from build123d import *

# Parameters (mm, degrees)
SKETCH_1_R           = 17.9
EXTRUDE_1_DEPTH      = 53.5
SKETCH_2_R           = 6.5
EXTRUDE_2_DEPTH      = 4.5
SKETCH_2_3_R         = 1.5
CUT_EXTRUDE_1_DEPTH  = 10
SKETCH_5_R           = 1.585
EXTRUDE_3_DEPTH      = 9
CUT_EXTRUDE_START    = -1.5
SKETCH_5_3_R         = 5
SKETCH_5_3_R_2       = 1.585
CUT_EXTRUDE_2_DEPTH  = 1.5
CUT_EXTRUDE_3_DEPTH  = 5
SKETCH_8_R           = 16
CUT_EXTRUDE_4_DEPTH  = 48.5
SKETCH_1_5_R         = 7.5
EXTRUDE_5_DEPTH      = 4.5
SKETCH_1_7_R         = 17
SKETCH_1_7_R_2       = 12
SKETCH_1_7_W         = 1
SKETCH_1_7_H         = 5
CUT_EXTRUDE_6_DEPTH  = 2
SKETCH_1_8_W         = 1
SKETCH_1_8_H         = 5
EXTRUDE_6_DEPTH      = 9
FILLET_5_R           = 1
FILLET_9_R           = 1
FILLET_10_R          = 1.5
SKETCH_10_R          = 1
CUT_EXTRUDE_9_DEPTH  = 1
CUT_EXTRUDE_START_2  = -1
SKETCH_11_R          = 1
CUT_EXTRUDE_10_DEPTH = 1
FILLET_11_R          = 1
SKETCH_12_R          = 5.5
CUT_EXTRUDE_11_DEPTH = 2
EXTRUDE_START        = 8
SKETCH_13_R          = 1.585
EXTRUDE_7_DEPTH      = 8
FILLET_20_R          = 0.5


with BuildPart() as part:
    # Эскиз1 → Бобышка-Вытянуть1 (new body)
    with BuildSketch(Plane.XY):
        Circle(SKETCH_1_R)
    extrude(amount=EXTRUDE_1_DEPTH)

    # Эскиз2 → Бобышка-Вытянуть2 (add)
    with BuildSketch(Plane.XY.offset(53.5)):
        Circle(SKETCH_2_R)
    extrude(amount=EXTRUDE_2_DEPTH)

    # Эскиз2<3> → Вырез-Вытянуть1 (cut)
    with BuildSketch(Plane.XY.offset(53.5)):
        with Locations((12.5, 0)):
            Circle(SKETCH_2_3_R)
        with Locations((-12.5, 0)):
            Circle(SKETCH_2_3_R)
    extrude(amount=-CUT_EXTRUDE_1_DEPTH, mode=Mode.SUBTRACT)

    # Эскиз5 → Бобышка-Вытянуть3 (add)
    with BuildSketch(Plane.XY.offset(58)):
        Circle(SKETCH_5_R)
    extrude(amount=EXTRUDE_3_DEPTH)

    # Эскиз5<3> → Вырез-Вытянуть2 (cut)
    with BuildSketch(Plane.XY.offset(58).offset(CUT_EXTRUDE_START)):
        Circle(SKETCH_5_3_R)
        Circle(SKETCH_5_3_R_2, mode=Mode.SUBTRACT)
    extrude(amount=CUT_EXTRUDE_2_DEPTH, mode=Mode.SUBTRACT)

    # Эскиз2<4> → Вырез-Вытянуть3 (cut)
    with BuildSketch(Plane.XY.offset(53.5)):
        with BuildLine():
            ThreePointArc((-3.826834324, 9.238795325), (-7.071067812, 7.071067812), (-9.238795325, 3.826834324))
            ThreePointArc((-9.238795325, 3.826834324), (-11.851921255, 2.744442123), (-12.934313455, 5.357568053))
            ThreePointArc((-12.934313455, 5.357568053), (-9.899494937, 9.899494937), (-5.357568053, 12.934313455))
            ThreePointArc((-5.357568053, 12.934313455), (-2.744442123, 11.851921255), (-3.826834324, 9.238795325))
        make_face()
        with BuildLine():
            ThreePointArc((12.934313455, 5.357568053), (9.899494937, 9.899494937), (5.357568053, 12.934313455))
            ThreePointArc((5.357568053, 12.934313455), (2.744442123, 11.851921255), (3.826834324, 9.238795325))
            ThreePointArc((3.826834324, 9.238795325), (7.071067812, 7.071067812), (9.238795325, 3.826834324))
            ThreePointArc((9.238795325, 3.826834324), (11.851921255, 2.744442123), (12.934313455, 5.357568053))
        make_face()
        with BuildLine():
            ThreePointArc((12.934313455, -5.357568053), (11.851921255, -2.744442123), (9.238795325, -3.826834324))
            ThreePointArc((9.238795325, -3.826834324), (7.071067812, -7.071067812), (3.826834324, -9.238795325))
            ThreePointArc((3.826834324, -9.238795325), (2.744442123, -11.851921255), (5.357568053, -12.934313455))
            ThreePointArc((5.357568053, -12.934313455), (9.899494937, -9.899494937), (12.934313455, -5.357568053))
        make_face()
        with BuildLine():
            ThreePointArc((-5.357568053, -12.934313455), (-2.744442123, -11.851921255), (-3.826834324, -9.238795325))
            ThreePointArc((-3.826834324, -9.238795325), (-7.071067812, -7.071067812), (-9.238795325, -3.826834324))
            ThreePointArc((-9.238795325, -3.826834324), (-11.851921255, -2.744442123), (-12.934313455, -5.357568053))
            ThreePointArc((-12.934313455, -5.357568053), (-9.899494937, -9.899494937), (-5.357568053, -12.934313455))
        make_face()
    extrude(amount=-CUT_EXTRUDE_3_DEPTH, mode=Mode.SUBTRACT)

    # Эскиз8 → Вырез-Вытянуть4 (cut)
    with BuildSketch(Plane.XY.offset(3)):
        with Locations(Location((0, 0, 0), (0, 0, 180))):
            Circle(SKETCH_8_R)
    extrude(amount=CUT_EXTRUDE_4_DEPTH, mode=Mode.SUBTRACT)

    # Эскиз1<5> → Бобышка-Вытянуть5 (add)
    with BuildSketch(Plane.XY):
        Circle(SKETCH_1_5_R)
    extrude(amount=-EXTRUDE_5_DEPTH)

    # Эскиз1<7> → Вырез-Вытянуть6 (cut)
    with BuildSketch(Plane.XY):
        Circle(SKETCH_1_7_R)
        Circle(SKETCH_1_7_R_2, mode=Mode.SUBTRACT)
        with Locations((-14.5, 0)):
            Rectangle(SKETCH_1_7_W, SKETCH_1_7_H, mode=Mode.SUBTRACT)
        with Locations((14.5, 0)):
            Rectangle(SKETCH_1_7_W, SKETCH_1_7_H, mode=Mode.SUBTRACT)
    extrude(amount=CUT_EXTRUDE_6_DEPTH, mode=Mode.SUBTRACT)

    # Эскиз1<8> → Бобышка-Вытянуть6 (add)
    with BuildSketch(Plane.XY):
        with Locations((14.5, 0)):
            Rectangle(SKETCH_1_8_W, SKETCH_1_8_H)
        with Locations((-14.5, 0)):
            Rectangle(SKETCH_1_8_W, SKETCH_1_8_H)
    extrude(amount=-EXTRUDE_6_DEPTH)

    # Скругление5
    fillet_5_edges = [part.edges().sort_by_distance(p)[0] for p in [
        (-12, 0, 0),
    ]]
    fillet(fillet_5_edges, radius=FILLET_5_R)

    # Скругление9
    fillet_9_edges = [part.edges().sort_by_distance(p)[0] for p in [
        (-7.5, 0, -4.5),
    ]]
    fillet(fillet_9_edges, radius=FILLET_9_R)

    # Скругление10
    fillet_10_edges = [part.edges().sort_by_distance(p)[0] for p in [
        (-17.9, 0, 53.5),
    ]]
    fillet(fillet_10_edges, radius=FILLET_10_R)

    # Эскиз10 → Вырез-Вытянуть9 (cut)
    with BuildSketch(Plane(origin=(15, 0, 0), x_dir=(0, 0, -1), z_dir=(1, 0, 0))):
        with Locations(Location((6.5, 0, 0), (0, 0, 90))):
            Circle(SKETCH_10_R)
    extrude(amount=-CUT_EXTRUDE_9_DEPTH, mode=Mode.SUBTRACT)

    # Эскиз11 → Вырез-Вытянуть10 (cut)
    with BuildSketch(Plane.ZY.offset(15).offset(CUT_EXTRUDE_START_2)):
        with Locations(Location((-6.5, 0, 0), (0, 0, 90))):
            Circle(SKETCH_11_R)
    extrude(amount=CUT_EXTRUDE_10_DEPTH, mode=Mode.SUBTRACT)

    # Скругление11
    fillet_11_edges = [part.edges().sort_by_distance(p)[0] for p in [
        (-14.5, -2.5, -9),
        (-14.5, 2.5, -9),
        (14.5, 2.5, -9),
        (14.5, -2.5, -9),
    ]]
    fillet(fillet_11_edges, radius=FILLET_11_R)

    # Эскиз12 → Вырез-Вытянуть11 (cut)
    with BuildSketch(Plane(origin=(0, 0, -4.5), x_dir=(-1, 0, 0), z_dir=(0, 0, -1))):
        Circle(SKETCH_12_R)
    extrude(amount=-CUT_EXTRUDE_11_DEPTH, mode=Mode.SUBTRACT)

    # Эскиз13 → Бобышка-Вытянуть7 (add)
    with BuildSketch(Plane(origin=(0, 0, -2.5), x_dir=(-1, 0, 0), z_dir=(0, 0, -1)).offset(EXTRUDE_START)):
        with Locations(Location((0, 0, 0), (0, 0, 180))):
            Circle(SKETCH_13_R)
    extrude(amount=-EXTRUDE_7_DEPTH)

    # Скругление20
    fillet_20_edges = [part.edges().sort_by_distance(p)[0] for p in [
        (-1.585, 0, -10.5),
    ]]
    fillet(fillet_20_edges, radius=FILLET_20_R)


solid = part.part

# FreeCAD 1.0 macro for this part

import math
import FreeCAD as App
import Part
import Sketcher

V = App.Vector
Q = App.Units.Quantity


def edges_at(feature, points):
    """Names of the edges that pass closest to the given points."""
    edges = feature.Shape.Edges
    near = lambda p: min(range(len(edges)), key=lambda i: edges[i].distToShape(Part.Vertex(*p))[0])
    return sorted({f"Edge{near(p) + 1}" for p in points})

doc = App.newDocument("Part")
body = doc.addObject("PartDesign::Body", "Body")

# Sketch on XY plane
sketch1 = body.newObject("Sketcher::SketchObject", "Sketch")
sketch1.AttachmentSupport = (doc.getObject("XY_Plane"), [""])
sketch1.MapMode = "FlatFace"
sketch1.addGeometry(Part.Circle(V(0, 0, 0), V(0, 0, 1), 17.9), False)
sketch1.addConstraint(Sketcher.Constraint("Coincident", 0, 3, -1, 1))
sketch1.addConstraint(Sketcher.Constraint("Diameter", 0, Q("35.8 mm")))
pad1 = body.newObject("PartDesign::Pad", "Pad")
pad1.Profile = sketch1
pad1.Length = 53.5

# Sketch on XY plane
sketch2 = body.newObject("Sketcher::SketchObject", "Sketch001")
sketch2.AttachmentSupport = (doc.getObject("XY_Plane"), [""])
sketch2.MapMode = "FlatFace"
sketch2.AttachmentOffset = App.Placement(V(0, 0, 53.5), App.Rotation())
sketch2.addGeometry(Part.Circle(V(0, 0, 0), V(0, 0, 1), 6.5), False)
sketch2.addConstraint(Sketcher.Constraint("Coincident", 0, 3, -1, 1))
sketch2.addConstraint(Sketcher.Constraint("Diameter", 0, Q("13 mm")))
pad2 = body.newObject("PartDesign::Pad", "Pad001")
pad2.Profile = sketch2
pad2.Length = 4.5

# Sketch on XY plane
sketch3 = body.newObject("Sketcher::SketchObject", "Sketch002")
sketch3.AttachmentSupport = (doc.getObject("XY_Plane"), [""])
sketch3.MapMode = "FlatFace"
sketch3.AttachmentOffset = App.Placement(V(0, 0, 53.5), App.Rotation())
sketch3.addGeometry(Part.Circle(V(12.5, 0, 0), V(0, 0, 1), 1.5), False)
sketch3.addGeometry(Part.Circle(V(-12.5, 0, 0), V(0, 0, 1), 1.5), False)
sketch3.addConstraint(Sketcher.Constraint("Equal", 0, 1))
sketch3.addConstraint(Sketcher.Constraint("Symmetric", 0, 3, 1, 3, -1, 1))
sketch3.addConstraint(Sketcher.Constraint("PointOnObject", 0, 3, -1))
sketch3.addConstraint(Sketcher.Constraint("Diameter", 0, Q("3 mm")))
sketch3.addConstraint(Sketcher.Constraint("DistanceX", 1, 3, 0, 3, Q("25 mm")))
pocket1 = body.newObject("PartDesign::Pocket", "Pocket")
pocket1.Profile = sketch3
pocket1.Length = 10

# Sketch on XY plane
sketch4 = body.newObject("Sketcher::SketchObject", "Sketch003")
sketch4.AttachmentSupport = (doc.getObject("XY_Plane"), [""])
sketch4.MapMode = "FlatFace"
sketch4.AttachmentOffset = App.Placement(V(0, 0, 58), App.Rotation())
sketch4.addGeometry(Part.Circle(V(0, 0, 0), V(0, 0, 1), 1.585), False)
sketch4.addConstraint(Sketcher.Constraint("Coincident", 0, 3, -1, 1))
sketch4.addConstraint(Sketcher.Constraint("Diameter", 0, Q("3.17 mm")))
pad3 = body.newObject("PartDesign::Pad", "Pad002")
pad3.Profile = sketch4
pad3.Length = 9

# Sketch on XY plane
sketch5 = body.newObject("Sketcher::SketchObject", "Sketch004")
sketch5.AttachmentSupport = (doc.getObject("XY_Plane"), [""])
sketch5.MapMode = "FlatFace"
sketch5.AttachmentOffset = App.Placement(V(0, 0, 56.5), App.Rotation())
sketch5.addGeometry(Part.Circle(V(0, 0, 0), V(0, 0, 1), 5), False)
sketch5.addGeometry(Part.Circle(V(0, 0, 0), V(0, 0, 1), 1.585), False)
sketch5.addConstraint(Sketcher.Constraint("Coincident", 0, 3, -1, 1))
sketch5.addConstraint(Sketcher.Constraint("Coincident", 1, 3, -1, 1))
sketch5.addConstraint(Sketcher.Constraint("Diameter", 0, Q("10 mm")))
sketch5.addConstraint(Sketcher.Constraint("Diameter", 1, Q("3.17 mm")))
pocket2 = body.newObject("PartDesign::Pocket", "Pocket001")
pocket2.Profile = sketch5
pocket2.Length = 1.5
pocket2.Reversed = True

# Sketch on XY plane
sketch6 = body.newObject("Sketcher::SketchObject", "Sketch005")
sketch6.AttachmentSupport = (doc.getObject("XY_Plane"), [""])
sketch6.MapMode = "FlatFace"
sketch6.AttachmentOffset = App.Placement(V(0, 0, 53.5), App.Rotation())
sketch6.addGeometry(Part.ArcOfCircle(Part.Circle(V(0, 0, 0), V(0, 0, 1), 10), math.radians(112.5), math.radians(157.5)), False)
sketch6.addGeometry(Part.ArcOfCircle(Part.Circle(V(-4.592201, 11.086554, 0), V(0, 0, 1), 2), math.radians(-67.5), math.radians(112.5)), False)
sketch6.addGeometry(Part.ArcOfCircle(Part.Circle(V(0, 0, 0), V(0, 0, 1), 14), math.radians(112.5), math.radians(157.5)), False)
sketch6.addGeometry(Part.ArcOfCircle(Part.Circle(V(-11.086554, 4.592201, 0), V(0, 0, 1), 2), math.radians(157.5), math.radians(337.5)), False)
sketch6.addGeometry(Part.ArcOfCircle(Part.Circle(V(0, 0, 0), V(0, 0, 1), 14), math.radians(22.5), math.radians(67.5)), False)
sketch6.addGeometry(Part.ArcOfCircle(Part.Circle(V(4.592201, 11.086554, 0), V(0, 0, 1), 2), math.radians(67.5), math.radians(247.5)), False)
sketch6.addGeometry(Part.ArcOfCircle(Part.Circle(V(0, 0, 0), V(0, 0, 1), 10), math.radians(22.5), math.radians(67.5)), False)
sketch6.addGeometry(Part.ArcOfCircle(Part.Circle(V(11.086554, 4.592201, 0), V(0, 0, 1), 2), math.radians(-157.5), math.radians(22.5)), False)
sketch6.addGeometry(Part.ArcOfCircle(Part.Circle(V(11.086554, -4.592201, 0), V(0, 0, 1), 2), math.radians(-22.5), math.radians(157.5)), False)
sketch6.addGeometry(Part.ArcOfCircle(Part.Circle(V(0, 0, 0), V(0, 0, 1), 10), math.radians(-67.5), math.radians(-22.5)), False)
sketch6.addGeometry(Part.ArcOfCircle(Part.Circle(V(4.592201, -11.086554, 0), V(0, 0, 1), 2), math.radians(112.5), math.radians(292.5)), False)
sketch6.addGeometry(Part.ArcOfCircle(Part.Circle(V(0, 0, 0), V(0, 0, 1), 14), math.radians(-67.5), math.radians(-22.5)), False)
sketch6.addGeometry(Part.ArcOfCircle(Part.Circle(V(-4.592201, -11.086554, 0), V(0, 0, 1), 2), math.radians(-112.5), math.radians(67.5)), False)
sketch6.addGeometry(Part.ArcOfCircle(Part.Circle(V(0, 0, 0), V(0, 0, 1), 10), math.radians(-157.5), math.radians(-112.5)), False)
sketch6.addGeometry(Part.ArcOfCircle(Part.Circle(V(-11.086554, -4.592201, 0), V(0, 0, 1), 2), math.radians(22.5), math.radians(202.5)), False)
sketch6.addGeometry(Part.ArcOfCircle(Part.Circle(V(0, 0, 0), V(0, 0, 1), 14), math.radians(-157.5), math.radians(-112.5)), False)
sketch6.addConstraint(Sketcher.Constraint("Tangent", 0, 1, 1, 1))
sketch6.addConstraint(Sketcher.Constraint("Tangent", 1, 2, 2, 1))
sketch6.addConstraint(Sketcher.Constraint("Tangent", 2, 2, 3, 1))
sketch6.addConstraint(Sketcher.Constraint("Tangent", 3, 2, 0, 2))
sketch6.addConstraint(Sketcher.Constraint("Tangent", 4, 2, 5, 1))
sketch6.addConstraint(Sketcher.Constraint("Tangent", 5, 2, 6, 2))
sketch6.addConstraint(Sketcher.Constraint("Tangent", 6, 1, 7, 1))
sketch6.addConstraint(Sketcher.Constraint("Tangent", 7, 2, 4, 1))
sketch6.addConstraint(Sketcher.Constraint("Tangent", 8, 2, 9, 2))
sketch6.addConstraint(Sketcher.Constraint("Tangent", 9, 1, 10, 1))
sketch6.addConstraint(Sketcher.Constraint("Tangent", 10, 2, 11, 1))
sketch6.addConstraint(Sketcher.Constraint("Tangent", 11, 2, 8, 1))
sketch6.addConstraint(Sketcher.Constraint("Tangent", 12, 2, 13, 2))
sketch6.addConstraint(Sketcher.Constraint("Tangent", 13, 1, 14, 1))
sketch6.addConstraint(Sketcher.Constraint("Tangent", 14, 2, 15, 1))
sketch6.addConstraint(Sketcher.Constraint("Tangent", 15, 2, 12, 1))
sketch6.addConstraint(Sketcher.Constraint("Coincident", 0, 3, -1, 1))
sketch6.addConstraint(Sketcher.Constraint("Coincident", 2, 3, -1, 1))
sketch6.addConstraint(Sketcher.Constraint("Coincident", 4, 3, -1, 1))
sketch6.addConstraint(Sketcher.Constraint("Coincident", 6, 3, -1, 1))
sketch6.addConstraint(Sketcher.Constraint("Coincident", 9, 3, -1, 1))
sketch6.addConstraint(Sketcher.Constraint("Coincident", 11, 3, -1, 1))
sketch6.addConstraint(Sketcher.Constraint("Coincident", 13, 3, -1, 1))
sketch6.addConstraint(Sketcher.Constraint("Coincident", 15, 3, -1, 1))
sketch6.addConstraint(Sketcher.Constraint("Equal", 2, 4))
sketch6.addConstraint(Sketcher.Constraint("Equal", 3, 5))
sketch6.addConstraint(Sketcher.Constraint("Equal", 7, 8))
sketch6.addConstraint(Sketcher.Constraint("Equal", 6, 9))
sketch6.addConstraint(Sketcher.Constraint("Equal", 10, 12))
sketch6.addConstraint(Sketcher.Constraint("Equal", 9, 13))
sketch6.addConstraint(Sketcher.Constraint("Horizontal", 1, 3, 5, 3))
sketch6.addConstraint(Sketcher.Constraint("Horizontal", 3, 3, 7, 3))
sketch6.addConstraint(Sketcher.Constraint("Horizontal", 10, 3, 12, 3))
sketch6.addConstraint(Sketcher.Constraint("Horizontal", 8, 3, 14, 3))
sketch6.addConstraint(Sketcher.Constraint("Vertical", 7, 3, 8, 3))
sketch6.addConstraint(Sketcher.Constraint("Vertical", 5, 3, 10, 3))
sketch6.addConstraint(Sketcher.Constraint("Radius", 0, Q("10 mm")))
sketch6.addConstraint(Sketcher.Constraint("Radius", 1, Q("2 mm")))
sketch6.addConstraint(Sketcher.Constraint("DistanceX", 1, 3, -1, 1, Q("4.592201 mm")))
sketch6.addConstraint(Sketcher.Constraint("DistanceY", -1, 1, 3, 3, Q("4.592201 mm")))
pocket3 = body.newObject("PartDesign::Pocket", "Pocket002")
pocket3.Profile = sketch6
pocket3.Length = 5

# Sketch on XY plane
sketch7 = body.newObject("Sketcher::SketchObject", "Sketch006")
sketch7.AttachmentSupport = (doc.getObject("XY_Plane"), [""])
sketch7.MapMode = "FlatFace"
sketch7.AttachmentOffset = App.Placement(V(0, 0, 3), App.Rotation())
sketch7.addGeometry(Part.Circle(V(0, 0, 0), V(0, 0, 1), 16), False)
sketch7.addConstraint(Sketcher.Constraint("Coincident", 0, 3, -1, 1))
sketch7.addConstraint(Sketcher.Constraint("Diameter", 0, Q("32 mm")))
pocket4 = body.newObject("PartDesign::Pocket", "Pocket003")
pocket4.Profile = sketch7
pocket4.Length = 48.5
pocket4.Reversed = True

# Sketch on XY plane
sketch8 = body.newObject("Sketcher::SketchObject", "Sketch007")
sketch8.AttachmentSupport = (doc.getObject("XY_Plane"), [""])
sketch8.MapMode = "FlatFace"
sketch8.addGeometry(Part.Circle(V(0, 0, 0), V(0, 0, 1), 7.5), False)
sketch8.addConstraint(Sketcher.Constraint("Coincident", 0, 3, -1, 1))
sketch8.addConstraint(Sketcher.Constraint("Diameter", 0, Q("15 mm")))
pad4 = body.newObject("PartDesign::Pad", "Pad003")
pad4.Profile = sketch8
pad4.Length = 4.5
pad4.Reversed = True

# Sketch on XY plane
sketch9 = body.newObject("Sketcher::SketchObject", "Sketch008")
sketch9.AttachmentSupport = (doc.getObject("XY_Plane"), [""])
sketch9.MapMode = "FlatFace"
sketch9.addGeometry(Part.Circle(V(0, 0, 0), V(0, 0, 1), 17), False)
sketch9.addGeometry(Part.LineSegment(V(-14, -2.5, 0), V(-15, -2.5, 0)), False)
sketch9.addGeometry(Part.LineSegment(V(-15, -2.5, 0), V(-15, 2.5, 0)), False)
sketch9.addGeometry(Part.LineSegment(V(-15, 2.5, 0), V(-14, 2.5, 0)), False)
sketch9.addGeometry(Part.LineSegment(V(-14, 2.5, 0), V(-14, -2.5, 0)), False)
sketch9.addGeometry(Part.Circle(V(0, 0, 0), V(0, 0, 1), 12), False)
sketch9.addGeometry(Part.LineSegment(V(15, -2.5, 0), V(14, -2.5, 0)), False)
sketch9.addGeometry(Part.LineSegment(V(14, -2.5, 0), V(14, 2.5, 0)), False)
sketch9.addGeometry(Part.LineSegment(V(14, 2.5, 0), V(15, 2.5, 0)), False)
sketch9.addGeometry(Part.LineSegment(V(15, 2.5, 0), V(15, -2.5, 0)), False)
sketch9.addConstraint(Sketcher.Constraint("Coincident", 1, 2, 2, 1))
sketch9.addConstraint(Sketcher.Constraint("Coincident", 2, 2, 3, 1))
sketch9.addConstraint(Sketcher.Constraint("Coincident", 3, 2, 4, 1))
sketch9.addConstraint(Sketcher.Constraint("Coincident", 4, 2, 1, 1))
sketch9.addConstraint(Sketcher.Constraint("Coincident", 6, 2, 7, 1))
sketch9.addConstraint(Sketcher.Constraint("Coincident", 7, 2, 8, 1))
sketch9.addConstraint(Sketcher.Constraint("Coincident", 8, 2, 9, 1))
sketch9.addConstraint(Sketcher.Constraint("Coincident", 9, 2, 6, 1))
sketch9.addConstraint(Sketcher.Constraint("Horizontal", 1))
sketch9.addConstraint(Sketcher.Constraint("Vertical", 2))
sketch9.addConstraint(Sketcher.Constraint("Horizontal", 3))
sketch9.addConstraint(Sketcher.Constraint("Vertical", 4))
sketch9.addConstraint(Sketcher.Constraint("Horizontal", 6))
sketch9.addConstraint(Sketcher.Constraint("Vertical", 7))
sketch9.addConstraint(Sketcher.Constraint("Horizontal", 8))
sketch9.addConstraint(Sketcher.Constraint("Vertical", 9))
sketch9.addConstraint(Sketcher.Constraint("Coincident", 0, 3, -1, 1))
sketch9.addConstraint(Sketcher.Constraint("Coincident", 5, 3, -1, 1))
sketch9.addConstraint(Sketcher.Constraint("Symmetric", 3, 2, 6, 2, -1, 1))
sketch9.addConstraint(Sketcher.Constraint("Symmetric", 1, 2, 8, 2, -1, 1))
sketch9.addConstraint(Sketcher.Constraint("Horizontal", 4, 2, 6, 2))
sketch9.addConstraint(Sketcher.Constraint("Diameter", 0, Q("34 mm")))
sketch9.addConstraint(Sketcher.Constraint("Diameter", 5, Q("24 mm")))
sketch9.addConstraint(Sketcher.Constraint("DistanceX", 1, 2, 1, 1, Q("1 mm")))
sketch9.addConstraint(Sketcher.Constraint("DistanceY", 2, 1, 2, 2, Q("5 mm")))
sketch9.addConstraint(Sketcher.Constraint("DistanceX", 1, 2, -1, 1, Q("15 mm")))
pocket5 = body.newObject("PartDesign::Pocket", "Pocket004")
pocket5.Profile = sketch9
pocket5.Length = 2
pocket5.Reversed = True

# Sketch on XY plane
sketch10 = body.newObject("Sketcher::SketchObject", "Sketch009")
sketch10.AttachmentSupport = (doc.getObject("XY_Plane"), [""])
sketch10.MapMode = "FlatFace"
sketch10.addGeometry(Part.LineSegment(V(14, 2.5, 0), V(14, -2.5, 0)), False)
sketch10.addGeometry(Part.LineSegment(V(14, -2.5, 0), V(15, -2.5, 0)), False)
sketch10.addGeometry(Part.LineSegment(V(15, -2.5, 0), V(15, 2.5, 0)), False)
sketch10.addGeometry(Part.LineSegment(V(15, 2.5, 0), V(14, 2.5, 0)), False)
sketch10.addGeometry(Part.LineSegment(V(-15, 2.5, 0), V(-15, -2.5, 0)), False)
sketch10.addGeometry(Part.LineSegment(V(-15, -2.5, 0), V(-14, -2.5, 0)), False)
sketch10.addGeometry(Part.LineSegment(V(-14, -2.5, 0), V(-14, 2.5, 0)), False)
sketch10.addGeometry(Part.LineSegment(V(-14, 2.5, 0), V(-15, 2.5, 0)), False)
sketch10.addConstraint(Sketcher.Constraint("Coincident", 0, 2, 1, 1))
sketch10.addConstraint(Sketcher.Constraint("Coincident", 1, 2, 2, 1))
sketch10.addConstraint(Sketcher.Constraint("Coincident", 2, 2, 3, 1))
sketch10.addConstraint(Sketcher.Constraint("Coincident", 3, 2, 0, 1))
sketch10.addConstraint(Sketcher.Constraint("Coincident", 4, 2, 5, 1))
sketch10.addConstraint(Sketcher.Constraint("Coincident", 5, 2, 6, 1))
sketch10.addConstraint(Sketcher.Constraint("Coincident", 6, 2, 7, 1))
sketch10.addConstraint(Sketcher.Constraint("Coincident", 7, 2, 4, 1))
sketch10.addConstraint(Sketcher.Constraint("Vertical", 0))
sketch10.addConstraint(Sketcher.Constraint("Horizontal", 1))
sketch10.addConstraint(Sketcher.Constraint("Vertical", 2))
sketch10.addConstraint(Sketcher.Constraint("Horizontal", 3))
sketch10.addConstraint(Sketcher.Constraint("Vertical", 4))
sketch10.addConstraint(Sketcher.Constraint("Horizontal", 5))
sketch10.addConstraint(Sketcher.Constraint("Vertical", 6))
sketch10.addConstraint(Sketcher.Constraint("Horizontal", 7))
sketch10.addConstraint(Sketcher.Constraint("Symmetric", 2, 2, 4, 2, -1, 1))
sketch10.addConstraint(Sketcher.Constraint("Symmetric", 0, 2, 6, 2, -1, 1))
sketch10.addConstraint(Sketcher.Constraint("Horizontal", 1, 2, 4, 2))
sketch10.addConstraint(Sketcher.Constraint("DistanceX", 1, 1, 1, 2, Q("1 mm")))
sketch10.addConstraint(Sketcher.Constraint("DistanceY", 0, 2, 0, 1, Q("5 mm")))
sketch10.addConstraint(Sketcher.Constraint("DistanceX", -1, 1, 0, 2, Q("14 mm")))
pad5 = body.newObject("PartDesign::Pad", "Pad004")
pad5.Profile = sketch10
pad5.Length = 9
pad5.Reversed = True
doc.recompute()

fillet = body.newObject("PartDesign::Fillet", "Fillet")
fillet.Base = (pad5, edges_at(pad5, [(-12, 0, 0)]))
fillet.Radius = 1
doc.recompute()

fillet2 = body.newObject("PartDesign::Fillet", "Fillet001")
fillet2.Base = (fillet, edges_at(fillet, [(-7.5, 0, -4.5)]))
fillet2.Radius = 1
doc.recompute()

fillet3 = body.newObject("PartDesign::Fillet", "Fillet002")
fillet3.Base = (fillet2, edges_at(fillet2, [(-17.9, 0, 53.5)]))
fillet3.Radius = 1.5

# Sketch on YZ plane
sketch11 = body.newObject("Sketcher::SketchObject", "Sketch010")
sketch11.AttachmentSupport = (doc.getObject("YZ_Plane"), [""])
sketch11.MapMode = "FlatFace"
sketch11.AttachmentOffset = App.Placement(V(0, 0, 15), App.Rotation())
sketch11.addGeometry(Part.Circle(V(0, -6.5, 0), V(0, 0, 1), 1), False)
sketch11.addConstraint(Sketcher.Constraint("PointOnObject", 0, 3, -2))
sketch11.addConstraint(Sketcher.Constraint("Diameter", 0, Q("2 mm")))
sketch11.addConstraint(Sketcher.Constraint("DistanceY", 0, 3, -1, 1, Q("6.5 mm")))
pocket6 = body.newObject("PartDesign::Pocket", "Pocket005")
pocket6.Profile = sketch11
pocket6.Length = 1

# Sketch on YZ plane
sketch12 = body.newObject("Sketcher::SketchObject", "Sketch011")
sketch12.AttachmentSupport = (doc.getObject("YZ_Plane"), [""])
sketch12.MapMode = "FlatFace"
sketch12.AttachmentOffset = App.Placement(V(0, 0, -14), App.Rotation())
sketch12.addGeometry(Part.Circle(V(0, -6.5, 0), V(0, 0, 1), 1), False)
sketch12.addConstraint(Sketcher.Constraint("PointOnObject", 0, 3, -2))
sketch12.addConstraint(Sketcher.Constraint("Diameter", 0, Q("2 mm")))
sketch12.addConstraint(Sketcher.Constraint("DistanceY", 0, 3, -1, 1, Q("6.5 mm")))
pocket7 = body.newObject("PartDesign::Pocket", "Pocket006")
pocket7.Profile = sketch12
pocket7.Length = 1
doc.recompute()

fillet4 = body.newObject("PartDesign::Fillet", "Fillet003")
fillet4.Base = (pocket7, edges_at(pocket7, [
    (-14.5, -2.5, -9),
    (-14.5, 2.5, -9),
    (14.5, 2.5, -9),
    (14.5, -2.5, -9),
]))
fillet4.Radius = 1

# Sketch on XY plane
sketch13 = body.newObject("Sketcher::SketchObject", "Sketch012")
sketch13.AttachmentSupport = (doc.getObject("XY_Plane"), [""])
sketch13.MapMode = "FlatFace"
sketch13.AttachmentOffset = App.Placement(V(0, 0, -4.5), App.Rotation())
sketch13.addGeometry(Part.Circle(V(0, 0, 0), V(0, 0, 1), 5.5), False)
sketch13.addConstraint(Sketcher.Constraint("Coincident", 0, 3, -1, 1))
sketch13.addConstraint(Sketcher.Constraint("Diameter", 0, Q("11 mm")))
pocket8 = body.newObject("PartDesign::Pocket", "Pocket007")
pocket8.Profile = sketch13
pocket8.Length = 2
pocket8.Reversed = True

# Sketch on XY plane
sketch14 = body.newObject("Sketcher::SketchObject", "Sketch013")
sketch14.AttachmentSupport = (doc.getObject("XY_Plane"), [""])
sketch14.MapMode = "FlatFace"
sketch14.AttachmentOffset = App.Placement(V(0, 0, -10.5), App.Rotation())
sketch14.addGeometry(Part.Circle(V(0, 0, 0), V(0, 0, 1), 1.585), False)
sketch14.addConstraint(Sketcher.Constraint("Coincident", 0, 3, -1, 1))
sketch14.addConstraint(Sketcher.Constraint("Diameter", 0, Q("3.17 mm")))
pad6 = body.newObject("PartDesign::Pad", "Pad005")
pad6.Profile = sketch14
pad6.Length = 8
doc.recompute()

fillet5 = body.newObject("PartDesign::Fillet", "Fillet004")
fillet5.Base = (pad6, edges_at(pad6, [(-1.585, 0, -10.5)]))
fillet5.Radius = 0.5

doc.recompute()
